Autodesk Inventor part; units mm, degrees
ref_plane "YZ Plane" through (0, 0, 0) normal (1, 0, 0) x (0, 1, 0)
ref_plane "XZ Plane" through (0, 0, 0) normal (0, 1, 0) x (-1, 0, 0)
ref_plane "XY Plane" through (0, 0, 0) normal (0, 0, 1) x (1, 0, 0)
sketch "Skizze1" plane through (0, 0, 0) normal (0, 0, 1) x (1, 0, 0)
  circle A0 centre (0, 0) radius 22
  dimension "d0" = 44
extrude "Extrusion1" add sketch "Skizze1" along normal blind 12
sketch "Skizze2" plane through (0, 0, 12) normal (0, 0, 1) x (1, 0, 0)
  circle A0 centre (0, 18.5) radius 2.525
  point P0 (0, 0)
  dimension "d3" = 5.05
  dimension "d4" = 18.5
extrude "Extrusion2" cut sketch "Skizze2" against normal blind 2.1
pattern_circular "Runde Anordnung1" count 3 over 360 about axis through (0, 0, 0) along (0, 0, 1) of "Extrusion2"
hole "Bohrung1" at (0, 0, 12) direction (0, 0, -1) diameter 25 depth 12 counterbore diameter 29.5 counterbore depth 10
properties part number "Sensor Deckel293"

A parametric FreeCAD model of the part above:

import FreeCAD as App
import Part
import Sketcher

doc = App.newDocument("Part")
params = doc.addObject("Spreadsheet::Sheet", "Params")
for row, (alias, value) in enumerate([
    ("sketch1_diameter", "44 mm"),
    ("pad1_length", "12 mm"),
    ("sketch2_diameter", "5.05 mm"),
    ("pocket1_length", "2.1 mm"),
    ("sketch3_diameter", "25 mm"),
    ("hole_diameter", "25 mm"),
    ("hole_depth", "12 mm"),
    ("hole_cbore_diameter", "29.5 mm"),
    ("hole_cbore_depth", "10 mm"),
], start=1):
    params.set(f"A{row}", alias)
    params.set(f"B{row}", "=" + value)
    params.setAlias(f"B{row}", alias)

body = doc.addObject("PartDesign::Body", "Body")

# Sketch on XY plane
sketch1 = body.newObject("Sketcher::SketchObject", "Sketch")
sketch1.AttachmentSupport = (doc.getObject("XY_Plane"), [""])
sketch1.MapMode = "FlatFace"
sketch1.addGeometry(Part.Circle(App.Vector(0, 0, 0), App.Vector(0, 0, 1), 22), False)
sketch1.addConstraint([
    Sketcher.Constraint("Coincident", 0, 3, -1, 1),
    Sketcher.Constraint("Diameter", 0, 44.0),
])
sketch1.setExpression("Constraints[1]", "Params.sketch1_diameter")
pad1 = body.newObject("PartDesign::Pad", "Pad")
pad1.Profile = sketch1
pad1.setExpression("Length", "Params.pad1_length")

# Sketch on XY plane
sketch2 = body.newObject("Sketcher::SketchObject", "Sketch001")
sketch2.AttachmentSupport = (doc.getObject("XY_Plane"), [""])
sketch2.MapMode = "FlatFace"
sketch2.AttachmentOffset = App.Placement(App.Vector(0, 0, 12), App.Rotation())
sketch2.addGeometry(Part.Circle(App.Vector(0, 18.5, 0), App.Vector(0, 0, 1), 2.5), False)
sketch2.addConstraint([
    Sketcher.Constraint("PointOnObject", 0, 3, -2),
    Sketcher.Constraint("Diameter", 0, 5.05),
    Sketcher.Constraint("DistanceY", -1, 1, 0, 3, 18.5),
])
sketch2.setExpression("Constraints[1]", "Params.sketch2_diameter")
pocket1 = body.newObject("PartDesign::Pocket", "Pocket")
pocket1.Profile = sketch2
pocket1.setExpression("Length", "Params.pocket1_length")
doc.recompute()

polarpattern = body.newObject("PartDesign::PolarPattern", "PolarPattern")
polarpattern.Originals = [pocket1]
polarpattern.Axis = (doc.getObject("Z_Axis"), [""])
polarpattern.Angle = 360
polarpattern.Occurrences = 3
body.Tip = polarpattern

# Sketch on XY plane
sketch3 = body.newObject("Sketcher::SketchObject", "Sketch002")
sketch3.AttachmentSupport = (doc.getObject("XY_Plane"), [""])
sketch3.MapMode = "FlatFace"
sketch3.AttachmentOffset = App.Placement(App.Vector(0, 0, 12), App.Rotation())
sketch3.addGeometry(Part.Circle(App.Vector(0, 0, 0), App.Vector(0, 0, 1), 12), False)
sketch3.addConstraint([
    Sketcher.Constraint("Coincident", 0, 3, -1, 1),
    Sketcher.Constraint("Diameter", 0, 25.0),
])
sketch3.setExpression("Constraints[1]", "Params.sketch3_diameter")
doc.recompute()
hole = body.newObject("PartDesign::Hole", "Hole")
hole.Profile = sketch3
hole.ThreadType = "None"
hole.setExpression("Diameter", "Params.hole_diameter")
hole.DepthType = "Dimension"
hole.setExpression("Depth", "Params.hole_depth")
hole.DrillPoint = "Flat"
hole.HoleCutType = "Counterbore"
hole.setExpression("HoleCutDiameter", "Params.hole_cbore_diameter")
hole.setExpression("HoleCutDepth", "Params.hole_cbore_depth")

doc.recompute()
